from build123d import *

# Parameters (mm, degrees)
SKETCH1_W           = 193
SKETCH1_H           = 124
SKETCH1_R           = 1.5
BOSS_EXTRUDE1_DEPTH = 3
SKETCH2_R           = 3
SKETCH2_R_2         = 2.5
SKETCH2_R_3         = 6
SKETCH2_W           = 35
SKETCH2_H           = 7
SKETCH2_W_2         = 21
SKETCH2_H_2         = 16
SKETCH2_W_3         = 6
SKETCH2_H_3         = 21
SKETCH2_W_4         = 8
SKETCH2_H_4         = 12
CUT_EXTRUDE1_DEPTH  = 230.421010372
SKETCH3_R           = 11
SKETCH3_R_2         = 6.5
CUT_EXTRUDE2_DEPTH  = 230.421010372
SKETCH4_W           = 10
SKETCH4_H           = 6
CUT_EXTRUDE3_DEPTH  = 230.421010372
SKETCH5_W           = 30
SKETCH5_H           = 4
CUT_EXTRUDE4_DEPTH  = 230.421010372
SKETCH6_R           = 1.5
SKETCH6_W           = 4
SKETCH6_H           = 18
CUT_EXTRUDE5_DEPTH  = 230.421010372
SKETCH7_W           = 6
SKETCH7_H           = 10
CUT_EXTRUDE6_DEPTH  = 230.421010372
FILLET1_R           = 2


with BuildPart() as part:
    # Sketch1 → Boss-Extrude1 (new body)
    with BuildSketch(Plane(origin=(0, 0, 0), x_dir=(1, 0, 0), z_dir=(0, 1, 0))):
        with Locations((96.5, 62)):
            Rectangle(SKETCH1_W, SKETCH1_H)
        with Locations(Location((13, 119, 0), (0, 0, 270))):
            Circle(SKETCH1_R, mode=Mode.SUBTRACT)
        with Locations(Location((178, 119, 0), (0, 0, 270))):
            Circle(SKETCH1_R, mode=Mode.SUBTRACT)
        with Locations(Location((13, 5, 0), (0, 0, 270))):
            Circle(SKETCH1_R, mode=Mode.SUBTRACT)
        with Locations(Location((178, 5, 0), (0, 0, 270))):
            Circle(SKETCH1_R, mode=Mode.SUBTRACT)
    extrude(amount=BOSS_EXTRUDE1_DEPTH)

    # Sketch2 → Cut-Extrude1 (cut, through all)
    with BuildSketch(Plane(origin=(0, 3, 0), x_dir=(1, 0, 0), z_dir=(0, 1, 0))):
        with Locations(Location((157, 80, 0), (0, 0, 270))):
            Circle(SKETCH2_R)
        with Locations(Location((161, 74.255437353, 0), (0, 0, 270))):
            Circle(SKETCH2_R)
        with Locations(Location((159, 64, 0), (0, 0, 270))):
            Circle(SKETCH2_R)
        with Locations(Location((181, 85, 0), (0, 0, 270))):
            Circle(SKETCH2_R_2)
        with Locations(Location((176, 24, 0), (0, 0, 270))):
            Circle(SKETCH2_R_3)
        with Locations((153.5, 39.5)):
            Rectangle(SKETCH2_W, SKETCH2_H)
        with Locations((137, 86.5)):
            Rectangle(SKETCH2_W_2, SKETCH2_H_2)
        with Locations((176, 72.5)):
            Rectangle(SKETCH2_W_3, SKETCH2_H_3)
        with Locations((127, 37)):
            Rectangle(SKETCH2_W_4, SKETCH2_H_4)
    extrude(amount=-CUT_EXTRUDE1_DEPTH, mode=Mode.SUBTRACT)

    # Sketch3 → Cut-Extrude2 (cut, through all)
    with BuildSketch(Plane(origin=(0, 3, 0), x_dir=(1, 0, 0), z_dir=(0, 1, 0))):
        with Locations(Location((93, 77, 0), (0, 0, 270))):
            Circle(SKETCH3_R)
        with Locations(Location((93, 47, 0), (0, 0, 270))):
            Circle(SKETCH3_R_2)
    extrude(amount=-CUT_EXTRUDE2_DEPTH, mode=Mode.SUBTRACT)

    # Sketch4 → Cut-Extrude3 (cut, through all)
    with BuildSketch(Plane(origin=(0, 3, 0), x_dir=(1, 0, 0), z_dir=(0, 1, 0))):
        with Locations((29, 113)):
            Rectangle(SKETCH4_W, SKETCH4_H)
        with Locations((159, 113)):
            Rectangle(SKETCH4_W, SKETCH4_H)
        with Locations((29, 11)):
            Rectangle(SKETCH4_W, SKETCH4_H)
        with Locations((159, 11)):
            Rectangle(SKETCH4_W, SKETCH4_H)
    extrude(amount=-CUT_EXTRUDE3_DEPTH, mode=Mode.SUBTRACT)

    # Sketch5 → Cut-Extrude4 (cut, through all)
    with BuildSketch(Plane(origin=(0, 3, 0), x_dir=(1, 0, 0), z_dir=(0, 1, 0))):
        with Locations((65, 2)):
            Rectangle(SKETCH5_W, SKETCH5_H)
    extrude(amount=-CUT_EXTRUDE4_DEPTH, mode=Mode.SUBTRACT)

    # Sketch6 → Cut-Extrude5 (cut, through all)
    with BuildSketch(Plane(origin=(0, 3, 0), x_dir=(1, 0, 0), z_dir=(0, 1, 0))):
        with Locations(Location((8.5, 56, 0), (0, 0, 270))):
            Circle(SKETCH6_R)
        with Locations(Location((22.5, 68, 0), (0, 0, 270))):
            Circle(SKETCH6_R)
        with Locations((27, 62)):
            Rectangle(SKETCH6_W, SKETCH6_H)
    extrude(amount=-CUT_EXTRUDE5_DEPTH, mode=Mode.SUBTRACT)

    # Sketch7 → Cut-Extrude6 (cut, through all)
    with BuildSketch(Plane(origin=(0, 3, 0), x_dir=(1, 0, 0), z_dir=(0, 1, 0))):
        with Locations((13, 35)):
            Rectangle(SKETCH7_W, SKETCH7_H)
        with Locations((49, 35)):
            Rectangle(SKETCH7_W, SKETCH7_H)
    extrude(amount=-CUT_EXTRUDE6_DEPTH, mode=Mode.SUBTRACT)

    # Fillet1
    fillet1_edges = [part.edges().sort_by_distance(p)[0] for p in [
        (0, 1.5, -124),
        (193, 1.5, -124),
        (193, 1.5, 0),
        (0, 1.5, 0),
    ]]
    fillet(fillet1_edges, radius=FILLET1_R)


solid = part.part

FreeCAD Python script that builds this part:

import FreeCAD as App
import Part
import Sketcher
from FreeCAD import Vector
Q = App.Units.Quantity


def edges_at(feature, points):
    """Names of the edges that pass closest to the given points."""
    edges = feature.Shape.Edges
    near = lambda p: min(range(len(edges)), key=lambda i: edges[i].distToShape(Part.Vertex(*p))[0])
    return sorted({f"Edge{near(p) + 1}" for p in points})


def add_polygon(sketch, points):
    """Adds a closed chain of lines whose ends are joined by coincident constraints."""
    first, n = sketch.GeometryCount, len(points)
    for a, b in zip(points, points[1:] + points[:1]):
        sketch.addGeometry(Part.LineSegment(App.Vector(*a, 0), App.Vector(*b, 0)), False)
    for i in range(n):
        sketch.addConstraint(Sketcher.Constraint("Coincident", first + i, 2, first + (i + 1) % n, 1))

doc = App.newDocument("Part")
body = doc.addObject("PartDesign::Body", "Body")

# Sketch on XZ plane
sketch1 = body.newObject("Sketcher::SketchObject", "Sketch")
sketch1.AttachmentSupport = (doc.getObject("XZ_Plane"), [""])
sketch1.MapMode = "FlatFace"
add_polygon(sketch1, [(0, -124), (0, 0), (193, 0), (193, -124)])  # lines 0-3
sketch1.addGeometry(Part.Circle(Vector(13, -5, 0), Vector(0, 0, 1), 1.5), False)  # 4
sketch1.addGeometry(Part.Circle(Vector(178, -5, 0), Vector(0, 0, 1), 1.5), False)  # 5
sketch1.addGeometry(Part.Circle(Vector(13, -119, 0), Vector(0, 0, 1), 1.5), False)  # 6
sketch1.addGeometry(Part.Circle(Vector(178, -119, 0), Vector(0, 0, 1), 1.5), False)  # 7
sketch1.addConstraint([
    Sketcher.Constraint("Vertical", 0),
    Sketcher.Constraint("Horizontal", 1),
    Sketcher.Constraint("Vertical", 2),
    Sketcher.Constraint("Horizontal", 3),
    Sketcher.Constraint("Coincident", 0, 2, -1, 1),
    Sketcher.Constraint("Equal", 4, 5),
    Sketcher.Constraint("Equal", 5, 6),
    Sketcher.Constraint("Equal", 6, 7),
    Sketcher.Constraint("Horizontal", 4, 3, 5, 3),
    Sketcher.Constraint("Horizontal", 6, 3, 7, 3),
    Sketcher.Constraint("Vertical", 4, 3, 6, 3),
    Sketcher.Constraint("Vertical", 5, 3, 7, 3),
    Sketcher.Constraint("Diameter", 4, Q("3 mm")),
    Sketcher.Constraint("DistanceX", 1, 1, 1, 2, Q("193 mm")),
    Sketcher.Constraint("DistanceY", 0, 1, 0, 2, Q("124 mm")),
    Sketcher.Constraint("DistanceX", -1, 1, 4, 3, Q("13 mm")),
    Sketcher.Constraint("DistanceY", 4, 3, -1, 1, Q("5 mm")),
    Sketcher.Constraint("DistanceX", -1, 1, 5, 3, Q("178 mm")),
    Sketcher.Constraint("DistanceY", 6, 3, -1, 1, Q("119 mm")),
])
pad1 = body.newObject("PartDesign::Pad", "Pad")
pad1.Profile = sketch1
pad1.Length = 3
pad1.Reversed = True

# Sketch on XZ plane
sketch2 = body.newObject("Sketcher::SketchObject", "Sketch001")
sketch2.AttachmentSupport = (doc.getObject("XZ_Plane"), [""])
sketch2.MapMode = "FlatFace"
sketch2.AttachmentOffset = App.Placement(Vector(0, 0, -3), App.Rotation())
sketch2.addGeometry(Part.Circle(Vector(157, -80, 0), Vector(0, 0, 1), 3), False)  # 0
sketch2.addGeometry(Part.Circle(Vector(161, -74.255437, 0), Vector(0, 0, 1), 3), False)  # 1
sketch2.addGeometry(Part.Circle(Vector(159, -64, 0), Vector(0, 0, 1), 3), False)  # 2
sketch2.addGeometry(Part.Circle(Vector(181, -85, 0), Vector(0, 0, 1), 2.5), False)  # 3
sketch2.addGeometry(Part.Circle(Vector(176, -24, 0), Vector(0, 0, 1), 6), False)  # 4
add_polygon(sketch2, [(136, -43), (136, -36), (171, -36), (171, -43)])  # lines 5-8
add_polygon(sketch2, [(126.5, -94.5), (126.5, -78.5), (147.5, -78.5), (147.5, -94.5)])  # lines 9-12
add_polygon(sketch2, [(173, -83), (173, -62), (179, -62), (179, -83)])  # lines 13-16
add_polygon(sketch2, [(123, -43), (123, -31), (131, -31), (131, -43)])  # lines 17-20
sketch2.addConstraint([
    Sketcher.Constraint("Vertical", 5),
    Sketcher.Constraint("Horizontal", 6),
    Sketcher.Constraint("Vertical", 7),
    Sketcher.Constraint("Horizontal", 8),
    Sketcher.Constraint("Vertical", 9),
    Sketcher.Constraint("Horizontal", 10),
    Sketcher.Constraint("Vertical", 11),
    Sketcher.Constraint("Horizontal", 12),
    Sketcher.Constraint("Vertical", 13),
    Sketcher.Constraint("Horizontal", 14),
    Sketcher.Constraint("Vertical", 15),
    Sketcher.Constraint("Horizontal", 16),
    Sketcher.Constraint("Vertical", 17),
    Sketcher.Constraint("Horizontal", 18),
    Sketcher.Constraint("Vertical", 19),
    Sketcher.Constraint("Horizontal", 20),
    Sketcher.Constraint("Equal", 0, 1),
    Sketcher.Constraint("Equal", 1, 2),
    Sketcher.Constraint("Horizontal", 8, 2, 19, 2),
    Sketcher.Constraint("Equal", 12, 13),
    Sketcher.Constraint("Diameter", 0, Q("6 mm")),
    Sketcher.Constraint("Diameter", 3, Q("5 mm")),
    Sketcher.Constraint("Diameter", 4, Q("12 mm")),
    Sketcher.Constraint("DistanceX", 6, 1, 6, 2, Q("35 mm")),
    Sketcher.Constraint("DistanceX", 10, 1, 10, 2, Q("21 mm")),
    Sketcher.Constraint("DistanceX", 14, 1, 14, 2, Q("6 mm")),
    Sketcher.Constraint("DistanceX", 18, 1, 18, 2, Q("8 mm")),
    Sketcher.Constraint("DistanceY", 5, 1, 5, 2, Q("7 mm")),
    Sketcher.Constraint("DistanceY", 9, 1, 9, 2, Q("16 mm")),
    Sketcher.Constraint("DistanceY", 17, 1, 17, 2, Q("12 mm")),
    Sketcher.Constraint("DistanceX", -1, 1, 0, 3, Q("157 mm")),
    Sketcher.Constraint("DistanceY", 0, 3, -1, 1, Q("80 mm")),
    Sketcher.Constraint("DistanceX", -1, 1, 1, 3, Q("161 mm")),
    Sketcher.Constraint("DistanceX", -1, 1, 2, 3, Q("159 mm")),
    Sketcher.Constraint("DistanceY", 2, 3, -1, 1, Q("64 mm")),
    Sketcher.Constraint("DistanceX", -1, 1, 3, 3, Q("181 mm")),
    Sketcher.Constraint("DistanceY", 3, 3, -1, 1, Q("85 mm")),
    Sketcher.Constraint("DistanceX", -1, 1, 4, 3, Q("176 mm")),
    Sketcher.Constraint("DistanceY", 4, 3, -1, 1, Q("24 mm")),
    Sketcher.Constraint("DistanceX", -1, 1, 5, 2, Q("136 mm")),
    Sketcher.Constraint("DistanceY", 5, 2, -1, 1, Q("36 mm")),
    Sketcher.Constraint("DistanceX", -1, 1, 13, 2, Q("173 mm")),
    Sketcher.Constraint("DistanceY", 13, 2, -1, 1, Q("62 mm")),
    Sketcher.Constraint("DistanceX", -1, 1, 17, 2, Q("123 mm")),
    Sketcher.Constraint("DistanceX", -1, 1, 9, 2, Q("126.5 mm")),
    Sketcher.Constraint("DistanceY", 9, 2, -1, 1, Q("78.5 mm")),
    Sketcher.Constraint("DistanceY", 1, 3, -1, 1, Q("74.255437 mm")),
])
pocket1 = body.newObject("PartDesign::Pocket", "Pocket")
pocket1.Profile = sketch2
pocket1.Type = "ThroughAll"
pocket1.Reversed = True

# Sketch on XZ plane
sketch3 = body.newObject("Sketcher::SketchObject", "Sketch002")
sketch3.AttachmentSupport = (doc.getObject("XZ_Plane"), [""])
sketch3.MapMode = "FlatFace"
sketch3.AttachmentOffset = App.Placement(Vector(0, 0, -3), App.Rotation())
sketch3.addGeometry([
    Part.Circle(Vector(93, -77, 0), Vector(0, 0, 1), 11),
    Part.Circle(Vector(93, -47, 0), Vector(0, 0, 1), 6.5),
], False)
sketch3.addConstraint([
    Sketcher.Constraint("Vertical", 0, 3, 1, 3),
    Sketcher.Constraint("Diameter", 0, Q("22 mm")),
    Sketcher.Constraint("Diameter", 1, Q("13 mm")),
    Sketcher.Constraint("DistanceX", -1, 1, 0, 3, Q("93 mm")),
    Sketcher.Constraint("DistanceY", 0, 3, -1, 1, Q("77 mm")),
    Sketcher.Constraint("DistanceY", 1, 3, -1, 1, Q("47 mm")),
])
pocket2 = body.newObject("PartDesign::Pocket", "Pocket001")
pocket2.Profile = sketch3
pocket2.Type = "ThroughAll"
pocket2.Reversed = True

# Sketch on XZ plane
sketch4 = body.newObject("Sketcher::SketchObject", "Sketch003")
sketch4.AttachmentSupport = (doc.getObject("XZ_Plane"), [""])
sketch4.MapMode = "FlatFace"
sketch4.AttachmentOffset = App.Placement(Vector(0, 0, -3), App.Rotation())
add_polygon(sketch4, [(24, -116), (24, -110), (34, -110), (34, -116)])  # lines 0-3
add_polygon(sketch4, [(154, -116), (154, -110), (164, -110), (164, -116)])  # lines 4-7
add_polygon(sketch4, [(24, -14), (24, -8), (34, -8), (34, -14)])  # lines 8-11
add_polygon(sketch4, [(154, -14), (154, -8), (164, -8), (164, -14)])  # lines 12-15
sketch4.addConstraint([
    Sketcher.Constraint("Vertical", 0),
    Sketcher.Constraint("Horizontal", 1),
    Sketcher.Constraint("Vertical", 2),
    Sketcher.Constraint("Horizontal", 3),
    Sketcher.Constraint("Vertical", 4),
    Sketcher.Constraint("Horizontal", 5),
    Sketcher.Constraint("Vertical", 6),
    Sketcher.Constraint("Horizontal", 7),
    Sketcher.Constraint("Vertical", 8),
    Sketcher.Constraint("Horizontal", 9),
    Sketcher.Constraint("Vertical", 10),
    Sketcher.Constraint("Horizontal", 11),
    Sketcher.Constraint("Vertical", 12),
    Sketcher.Constraint("Horizontal", 13),
    Sketcher.Constraint("Vertical", 14),
    Sketcher.Constraint("Horizontal", 15),
    Sketcher.Constraint("Horizontal", 1, 2, 4, 2),
    Sketcher.Constraint("Horizontal", 3, 2, 6, 2),
    Sketcher.Constraint("Horizontal", 9, 2, 12, 2),
    Sketcher.Constraint("Horizontal", 11, 2, 14, 2),
    Sketcher.Constraint("Vertical", 3, 2, 8, 2),
    Sketcher.Constraint("Vertical", 2, 2, 9, 2),
    Sketcher.Constraint("Vertical", 7, 2, 12, 2),
    Sketcher.Constraint("Vertical", 6, 2, 13, 2),
    Sketcher.Constraint("Equal", 3, 5),
    Sketcher.Constraint("Equal", 6, 8),
    Sketcher.Constraint("DistanceX", 1, 1, 1, 2, Q("10 mm")),
    Sketcher.Constraint("DistanceY", 0, 1, 0, 2, Q("6 mm")),
    Sketcher.Constraint("DistanceX", -1, 1, 0, 2, Q("24 mm")),
    Sketcher.Constraint("DistanceY", 0, 2, -1, 1, Q("110 mm")),
    Sketcher.Constraint("DistanceX", -1, 1, 4, 2, Q("154 mm")),
    Sketcher.Constraint("DistanceY", 8, 2, -1, 1, Q("8 mm")),
])
pocket3 = body.newObject("PartDesign::Pocket", "Pocket002")
pocket3.Profile = sketch4
pocket3.Type = "ThroughAll"
pocket3.Reversed = True

# Sketch on XZ plane
sketch5 = body.newObject("Sketcher::SketchObject", "Sketch004")
sketch5.AttachmentSupport = (doc.getObject("XZ_Plane"), [""])
sketch5.MapMode = "FlatFace"
sketch5.AttachmentOffset = App.Placement(Vector(0, 0, -3), App.Rotation())
add_polygon(sketch5, [(50, -4), (50, 0), (80, 0), (80, -4)])  # lines 0-3
sketch5.addConstraint([
    Sketcher.Constraint("Vertical", 0),
    Sketcher.Constraint("Horizontal", 1),
    Sketcher.Constraint("Vertical", 2),
    Sketcher.Constraint("Horizontal", 3),
    Sketcher.Constraint("PointOnObject", 0, 2, -1),
    Sketcher.Constraint("DistanceX", 1, 1, 1, 2, Q("30 mm")),
    Sketcher.Constraint("DistanceY", 0, 1, 0, 2, Q("4 mm")),
    Sketcher.Constraint("DistanceX", -1, 1, 0, 2, Q("50 mm")),
])
pocket4 = body.newObject("PartDesign::Pocket", "Pocket003")
pocket4.Profile = sketch5
pocket4.Type = "ThroughAll"
pocket4.Reversed = True

# Sketch on XZ plane
sketch6 = body.newObject("Sketcher::SketchObject", "Sketch005")
sketch6.AttachmentSupport = (doc.getObject("XZ_Plane"), [""])
sketch6.MapMode = "FlatFace"
sketch6.AttachmentOffset = App.Placement(Vector(0, 0, -3), App.Rotation())
sketch6.addGeometry(Part.Circle(Vector(8.5, -56, 0), Vector(0, 0, 1), 1.5), False)  # 0
sketch6.addGeometry(Part.Circle(Vector(22.5, -68, 0), Vector(0, 0, 1), 1.5), False)  # 1
add_polygon(sketch6, [(25, -71), (25, -53), (29, -53), (29, -71)])  # lines 2-5
sketch6.addConstraint([
    Sketcher.Constraint("Vertical", 2),
    Sketcher.Constraint("Horizontal", 3),
    Sketcher.Constraint("Vertical", 4),
    Sketcher.Constraint("Horizontal", 5),
    Sketcher.Constraint("Equal", 0, 1),
    Sketcher.Constraint("Diameter", 0, Q("3 mm")),
    Sketcher.Constraint("DistanceX", 3, 1, 3, 2, Q("4 mm")),
    Sketcher.Constraint("DistanceY", 2, 1, 2, 2, Q("18 mm")),
    Sketcher.Constraint("DistanceY", 0, 3, -1, 1, Q("56 mm")),
    Sketcher.Constraint("DistanceY", 1, 3, -1, 1, Q("68 mm")),
    Sketcher.Constraint("DistanceX", -1, 1, 2, 2, Q("25 mm")),
    Sketcher.Constraint("DistanceY", 2, 2, -1, 1, Q("53 mm")),
    Sketcher.Constraint("DistanceX", 0, 3, 1, 3, Q("14 mm")),
    Sketcher.Constraint("DistanceX", -1, 1, 0, 3, Q("8.5 mm")),
])
pocket5 = body.newObject("PartDesign::Pocket", "Pocket004")
pocket5.Profile = sketch6
pocket5.Type = "ThroughAll"
pocket5.Reversed = True

# Sketch on XZ plane
sketch7 = body.newObject("Sketcher::SketchObject", "Sketch006")
sketch7.AttachmentSupport = (doc.getObject("XZ_Plane"), [""])
sketch7.MapMode = "FlatFace"
sketch7.AttachmentOffset = App.Placement(Vector(0, 0, -3), App.Rotation())
add_polygon(sketch7, [(10, -40), (10, -30), (16, -30), (16, -40)])  # lines 0-3
add_polygon(sketch7, [(46, -40), (46, -30), (52, -30), (52, -40)])  # lines 4-7
sketch7.addConstraint([
    Sketcher.Constraint("Vertical", 0),
    Sketcher.Constraint("Horizontal", 1),
    Sketcher.Constraint("Vertical", 2),
    Sketcher.Constraint("Horizontal", 3),
    Sketcher.Constraint("Vertical", 4),
    Sketcher.Constraint("Horizontal", 5),
    Sketcher.Constraint("Vertical", 6),
    Sketcher.Constraint("Horizontal", 7),
    Sketcher.Constraint("Horizontal", 1, 2, 4, 2),
    Sketcher.Constraint("Horizontal", 3, 2, 6, 2),
    Sketcher.Constraint("Equal", 3, 5),
    Sketcher.Constraint("DistanceX", 1, 1, 1, 2, Q("6 mm")),
    Sketcher.Constraint("DistanceY", 0, 1, 0, 2, Q("10 mm")),
    Sketcher.Constraint("DistanceX", -1, 1, 0, 2, Q("10 mm")),
    Sketcher.Constraint("DistanceY", 0, 2, -1, 1, Q("30 mm")),
    Sketcher.Constraint("DistanceX", -1, 1, 4, 2, Q("46 mm")),
])
pocket6 = body.newObject("PartDesign::Pocket", "Pocket005")
pocket6.Profile = sketch7
pocket6.Type = "ThroughAll"
pocket6.Reversed = True
doc.recompute()

fillet = body.newObject("PartDesign::Fillet", "Fillet")
fillet.Base = (pocket6, edges_at(pocket6, [
    (0, 1.5, -124),
    (193, 1.5, -124),
    (193, 1.5, 0),
    (0, 1.5, 0),
]))
fillet.Radius = 2

doc.recompute()
